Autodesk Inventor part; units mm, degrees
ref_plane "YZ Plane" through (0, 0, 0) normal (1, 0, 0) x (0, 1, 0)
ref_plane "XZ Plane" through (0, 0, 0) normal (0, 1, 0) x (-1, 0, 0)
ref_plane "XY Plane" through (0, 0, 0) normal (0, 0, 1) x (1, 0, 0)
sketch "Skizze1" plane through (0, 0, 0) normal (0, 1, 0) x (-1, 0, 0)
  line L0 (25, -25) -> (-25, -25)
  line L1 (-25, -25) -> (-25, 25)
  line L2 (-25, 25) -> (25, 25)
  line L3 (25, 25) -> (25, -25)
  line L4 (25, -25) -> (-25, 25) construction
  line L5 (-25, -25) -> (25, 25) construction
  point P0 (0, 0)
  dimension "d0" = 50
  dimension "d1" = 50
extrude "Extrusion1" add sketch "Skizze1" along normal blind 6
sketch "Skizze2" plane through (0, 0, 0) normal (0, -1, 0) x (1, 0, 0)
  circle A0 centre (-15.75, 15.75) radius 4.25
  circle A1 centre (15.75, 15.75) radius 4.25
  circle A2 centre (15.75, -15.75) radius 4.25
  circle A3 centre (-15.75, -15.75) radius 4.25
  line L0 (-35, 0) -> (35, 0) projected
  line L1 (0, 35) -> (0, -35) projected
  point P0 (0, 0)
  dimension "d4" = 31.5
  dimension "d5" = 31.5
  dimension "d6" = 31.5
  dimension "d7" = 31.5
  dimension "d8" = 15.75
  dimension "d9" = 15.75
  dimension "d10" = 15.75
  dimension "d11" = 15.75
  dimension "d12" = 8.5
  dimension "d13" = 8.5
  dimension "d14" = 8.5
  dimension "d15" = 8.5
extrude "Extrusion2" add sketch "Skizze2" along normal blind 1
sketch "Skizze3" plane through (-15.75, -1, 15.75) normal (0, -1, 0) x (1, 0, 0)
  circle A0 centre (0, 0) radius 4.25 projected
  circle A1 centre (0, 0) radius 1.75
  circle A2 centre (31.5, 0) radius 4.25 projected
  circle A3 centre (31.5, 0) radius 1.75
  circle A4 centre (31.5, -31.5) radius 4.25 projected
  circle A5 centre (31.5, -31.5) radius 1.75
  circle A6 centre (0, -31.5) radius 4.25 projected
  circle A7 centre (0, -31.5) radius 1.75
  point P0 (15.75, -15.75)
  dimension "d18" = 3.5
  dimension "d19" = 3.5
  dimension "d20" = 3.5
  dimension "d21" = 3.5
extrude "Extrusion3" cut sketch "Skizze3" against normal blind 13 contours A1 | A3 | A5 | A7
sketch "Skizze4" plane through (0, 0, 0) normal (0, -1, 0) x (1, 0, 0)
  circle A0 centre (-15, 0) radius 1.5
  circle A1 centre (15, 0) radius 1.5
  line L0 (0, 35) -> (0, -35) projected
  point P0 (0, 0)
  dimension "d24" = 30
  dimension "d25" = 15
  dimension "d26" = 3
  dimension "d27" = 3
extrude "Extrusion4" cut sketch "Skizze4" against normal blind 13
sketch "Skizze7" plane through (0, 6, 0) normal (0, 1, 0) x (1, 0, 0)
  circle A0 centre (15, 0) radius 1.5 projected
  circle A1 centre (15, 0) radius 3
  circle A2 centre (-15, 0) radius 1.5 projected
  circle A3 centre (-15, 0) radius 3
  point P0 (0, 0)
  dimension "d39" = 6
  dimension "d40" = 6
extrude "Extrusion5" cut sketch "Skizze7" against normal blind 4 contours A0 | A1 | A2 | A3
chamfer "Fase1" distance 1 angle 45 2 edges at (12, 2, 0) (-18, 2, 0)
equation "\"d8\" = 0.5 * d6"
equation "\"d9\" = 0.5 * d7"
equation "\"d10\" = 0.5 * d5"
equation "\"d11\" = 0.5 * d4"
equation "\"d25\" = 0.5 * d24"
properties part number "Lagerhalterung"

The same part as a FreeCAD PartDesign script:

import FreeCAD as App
import Part
import Sketcher
from FreeCAD import Vector


def edges_at(feature, points):
    """Names of the edges that pass closest to the given points."""
    edges = feature.Shape.Edges
    near = lambda p: min(range(len(edges)), key=lambda i: edges[i].distToShape(Part.Vertex(*p))[0])
    return sorted({f"Edge{near(p) + 1}" for p in points})

doc = App.newDocument("Part")
body = doc.addObject("PartDesign::Body", "Body")

sketch1 = body.newObject("Sketcher::SketchObject", "Sketch")
sketch1.AttachmentSupport = (doc.getObject("XZ_Plane"), [""])
sketch1.MapMode = "FlatFace"
sketch1.addGeometry([
    Part.LineSegment(Vector(25, -25, 0), Vector(-25, -25, 0)),
    Part.LineSegment(Vector(-25, -25, 0), Vector(-25, 25, 0)),
    Part.LineSegment(Vector(-25, 25, 0), Vector(25, 25, 0)),
    Part.LineSegment(Vector(25, 25, 0), Vector(25, -25, 0)),
], False)
sketch1.addConstraint([
    Sketcher.Constraint("Coincident", 0, 2, 1, 1),
    Sketcher.Constraint("Coincident", 1, 2, 2, 1),
    Sketcher.Constraint("Coincident", 2, 2, 3, 1),
    Sketcher.Constraint("Coincident", 3, 2, 0, 1),
    Sketcher.Constraint("Horizontal", 0),
    Sketcher.Constraint("Vertical", 1),
    Sketcher.Constraint("Horizontal", 2),
    Sketcher.Constraint("Vertical", 3),
    Sketcher.Constraint("Symmetric", 0, 2, 2, 2, -1, 1),
    Sketcher.Constraint("Equal", 2, 1),
    Sketcher.Constraint("DistanceX", 0, 2, 0, 1, 50.0),
])
pad1 = body.newObject("PartDesign::Pad", "Pad")
pad1.Profile = sketch1
pad1.Length = 6
pad1.Reversed = True

sketch2 = body.newObject("Sketcher::SketchObject", "Sketch001")
sketch2.AttachmentSupport = (doc.getObject("XZ_Plane"), [""])
sketch2.MapMode = "FlatFace"
sketch2.addGeometry([
    Part.Circle(Vector(-15.8, 15.8, 0), Vector(0, 0, 1), 4.2),
    Part.Circle(Vector(15.8, 15.8, 0), Vector(0, 0, 1), 4.2),
    Part.Circle(Vector(15.8, -15.8, 0), Vector(0, 0, 1), 4.2),
    Part.Circle(Vector(-15.8, -15.8, 0), Vector(0, 0, 1), 4.2),
], False)
sketch2.addConstraint([
    Sketcher.Constraint("Equal", 0, 1),
    Sketcher.Constraint("Equal", 1, 2),
    Sketcher.Constraint("Equal", 2, 3),
    Sketcher.Constraint("Symmetric", 0, 3, 2, 3, -1, 1),
    Sketcher.Constraint("Symmetric", 1, 3, 3, 3, -1, 1),
    Sketcher.Constraint("Symmetric", 0, 3, 1, 3, -2),
    Sketcher.Constraint("Diameter", 0, 8.5),
    Sketcher.Constraint("DistanceX", 0, 3, 1, 3, 31.5),
    Sketcher.Constraint("DistanceY", 2, 3, 1, 3, 31.5),
])
pad2 = body.newObject("PartDesign::Pad", "Pad001")
pad2.Profile = sketch2
pad2.Length = 1

sketch3 = body.newObject("Sketcher::SketchObject", "Sketch002")
sketch3.AttachmentSupport = (doc.getObject("XZ_Plane"), [""])
sketch3.MapMode = "FlatFace"
sketch3.AttachmentOffset = App.Placement(Vector(0, 0, 1), App.Rotation())
sketch3.addGeometry([
    Part.Circle(Vector(-15.8, 15.8, 0), Vector(0, 0, 1), 1.8),
    Part.Circle(Vector(15.8, 15.8, 0), Vector(0, 0, 1), 1.8),
    Part.Circle(Vector(15.8, -15.8, 0), Vector(0, 0, 1), 1.8),
    Part.Circle(Vector(-15.8, -15.8, 0), Vector(0, 0, 1), 1.8),
], False)
sketch3.addConstraint([
    Sketcher.Constraint("Equal", 0, 1),
    Sketcher.Constraint("Equal", 1, 2),
    Sketcher.Constraint("Equal", 2, 3),
    Sketcher.Constraint("Symmetric", 0, 3, 2, 3, -1, 1),
    Sketcher.Constraint("Symmetric", 1, 3, 3, 3, -1, 1),
    Sketcher.Constraint("Symmetric", 0, 3, 1, 3, -2),
    Sketcher.Constraint("Diameter", 0, 3.5),
    Sketcher.Constraint("DistanceX", 0, 3, 1, 3, 31.5),
    Sketcher.Constraint("DistanceY", 2, 3, 1, 3, 31.5),
])
pocket1 = body.newObject("PartDesign::Pocket", "Pocket")
pocket1.Profile = sketch3
pocket1.Length = 13

sketch4 = body.newObject("Sketcher::SketchObject", "Sketch003")
sketch4.AttachmentSupport = (doc.getObject("XZ_Plane"), [""])
sketch4.MapMode = "FlatFace"
sketch4.addGeometry([
    Part.Circle(Vector(-15, 0, 0), Vector(0, 0, 1), 1.5),
    Part.Circle(Vector(15, 0, 0), Vector(0, 0, 1), 1.5),
], False)
sketch4.addConstraint([
    Sketcher.Constraint("Equal", 0, 1),
    Sketcher.Constraint("Symmetric", 0, 3, 1, 3, -1, 1),
    Sketcher.Constraint("PointOnObject", 0, 3, -1),
    Sketcher.Constraint("Diameter", 0, 3.0),
    Sketcher.Constraint("DistanceX", 0, 3, -1, 1, 15.0),
])
pocket2 = body.newObject("PartDesign::Pocket", "Pocket001")
pocket2.Profile = sketch4
pocket2.Length = 13

sketch5 = body.newObject("Sketcher::SketchObject", "Sketch004")
sketch5.AttachmentSupport = (doc.getObject("XZ_Plane"), [""])
sketch5.MapMode = "FlatFace"
sketch5.AttachmentOffset = App.Placement(Vector(0, 0, -6), App.Rotation())
sketch5.addGeometry([
    Part.Circle(Vector(15, 0, 0), Vector(0, 0, 1), 3),
    Part.Circle(Vector(-15, 0, 0), Vector(0, 0, 1), 3),
], False)
sketch5.addConstraint([
    Sketcher.Constraint("Equal", 0, 1),
    Sketcher.Constraint("Symmetric", 0, 3, 1, 3, -1, 1),
    Sketcher.Constraint("PointOnObject", 0, 3, -1),
    Sketcher.Constraint("Diameter", 0, 6.0),
    Sketcher.Constraint("DistanceX", -1, 1, 0, 3, 15.0),
])
pocket3 = body.newObject("PartDesign::Pocket", "Pocket002")
pocket3.Profile = sketch5
pocket3.Length = 4
pocket3.Reversed = True
doc.recompute()

chamfer = body.newObject("PartDesign::Chamfer", "Chamfer")
chamfer.Base = (pocket3, edges_at(pocket3, [(12, 2, 0), (-18, 2, 0)]))
chamfer.Size = 1

doc.recompute()
